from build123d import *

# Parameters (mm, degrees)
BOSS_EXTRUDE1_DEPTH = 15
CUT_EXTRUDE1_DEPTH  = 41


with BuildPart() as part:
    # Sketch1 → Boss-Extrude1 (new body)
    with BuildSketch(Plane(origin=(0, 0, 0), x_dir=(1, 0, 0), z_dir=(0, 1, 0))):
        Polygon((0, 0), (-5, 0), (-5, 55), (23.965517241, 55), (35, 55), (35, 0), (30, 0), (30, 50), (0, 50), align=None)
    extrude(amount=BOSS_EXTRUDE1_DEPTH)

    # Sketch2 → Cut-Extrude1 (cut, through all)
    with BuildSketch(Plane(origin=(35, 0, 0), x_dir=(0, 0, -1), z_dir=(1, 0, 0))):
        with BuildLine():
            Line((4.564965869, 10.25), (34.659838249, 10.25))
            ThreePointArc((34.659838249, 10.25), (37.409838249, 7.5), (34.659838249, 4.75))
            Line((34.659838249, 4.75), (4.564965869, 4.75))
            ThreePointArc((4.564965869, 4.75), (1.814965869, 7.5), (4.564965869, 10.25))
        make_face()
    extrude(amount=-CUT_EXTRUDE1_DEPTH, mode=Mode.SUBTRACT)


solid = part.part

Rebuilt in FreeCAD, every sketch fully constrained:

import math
import FreeCAD as App
import Part
import Sketcher
from FreeCAD import Vector

doc = App.newDocument("Part")
body = doc.addObject("PartDesign::Body", "Body")

sketch1 = body.newObject("Sketcher::SketchObject", "Sketch")
sketch1.AttachmentSupport = (doc.getObject("XZ_Plane"), [""])
sketch1.MapMode = "FlatFace"
sketch1.addGeometry([
    Part.LineSegment(Vector(-5, 0, 0), Vector(0, 0, 0)),
    Part.LineSegment(Vector(0, 0, 0), Vector(0, -50, 0)),
    Part.LineSegment(Vector(0, -50, 0), Vector(30, -50, 0)),
    Part.LineSegment(Vector(30, -50, 0), Vector(30, 0, 0)),
    Part.LineSegment(Vector(30, 0, 0), Vector(35, 0, 0)),
    Part.LineSegment(Vector(35, 0, 0), Vector(35, -55, 0)),
    Part.LineSegment(Vector(35, -55, 0), Vector(-5, -55, 0)),
    Part.LineSegment(Vector(-5, -55, 0), Vector(-5, 0, 0)),
], False)
sketch1.addConstraint([
    Sketcher.Constraint("Coincident", 0, 2, 1, 1),
    Sketcher.Constraint("Coincident", 1, 2, 2, 1),
    Sketcher.Constraint("Coincident", 2, 2, 3, 1),
    Sketcher.Constraint("Coincident", 3, 2, 4, 1),
    Sketcher.Constraint("Coincident", 4, 2, 5, 1),
    Sketcher.Constraint("Coincident", 5, 2, 6, 1),
    Sketcher.Constraint("Coincident", 6, 2, 7, 1),
    Sketcher.Constraint("Coincident", 7, 2, 0, 1),
    Sketcher.Constraint("Horizontal", 0),
    Sketcher.Constraint("Vertical", 1),
    Sketcher.Constraint("Horizontal", 2),
    Sketcher.Constraint("Vertical", 3),
    Sketcher.Constraint("Horizontal", 4),
    Sketcher.Constraint("Vertical", 5),
    Sketcher.Constraint("Horizontal", 6),
    Sketcher.Constraint("Vertical", 7),
    Sketcher.Constraint("Coincident", 0, 2, -1, 1),
    Sketcher.Constraint("PointOnObject", 3, 2, -1),
    Sketcher.Constraint("Equal", 0, 4),
    Sketcher.Constraint("DistanceX", 0, 1, 0, 2, 5.0),
    Sketcher.Constraint("DistanceX", 2, 1, 2, 2, 30.0),
    Sketcher.Constraint("DistanceY", 1, 2, 1, 1, 50.0),
    Sketcher.Constraint("DistanceY", 5, 2, 5, 1, 55.0),
])
pad1 = body.newObject("PartDesign::Pad", "Pad")
pad1.Profile = sketch1
pad1.Length = 15
pad1.Reversed = True

sketch2 = body.newObject("Sketcher::SketchObject", "Sketch001")
sketch2.AttachmentSupport = (doc.getObject("YZ_Plane"), [""])
sketch2.MapMode = "FlatFace"
sketch2.AttachmentOffset = App.Placement(Vector(0, 0, 35), App.Rotation())
sketch2.addGeometry([
    Part.LineSegment(Vector(10.2, -34.7, 0), Vector(10.2, -4.6, 0)),
    Part.ArcOfCircle(Part.Circle(Vector(7.5, -4.6, 0), Vector(0, 0, 1), 2.8), math.radians(0), math.radians(180)),
    Part.LineSegment(Vector(4.8, -4.6, 0), Vector(4.8, -34.7, 0)),
    Part.ArcOfCircle(Part.Circle(Vector(7.5, -34.7, 0), Vector(0, 0, 1), 2.8), math.radians(180), math.radians(360)),
], False)
sketch2.addConstraint([
    Sketcher.Constraint("Tangent", 0, 2, 1, 1),
    Sketcher.Constraint("Tangent", 1, 2, 2, 1),
    Sketcher.Constraint("Tangent", 2, 2, 3, 1),
    Sketcher.Constraint("Tangent", 3, 2, 0, 1),
    Sketcher.Constraint("Vertical", 0),
    Sketcher.Constraint("Vertical", 2),
    Sketcher.Constraint("Radius", 1, 2.75),
    Sketcher.Constraint("DistanceX", -1, 1, 1, 3, 7.5),
    Sketcher.Constraint("DistanceY", 0, 1, 0, 2, 30.094872),
    Sketcher.Constraint("DistanceY", 3, 3, -1, 1, 34.659838),
])
pocket1 = body.newObject("PartDesign::Pocket", "Pocket")
pocket1.Profile = sketch2
pocket1.Type = "ThroughAll"

doc.recompute()
